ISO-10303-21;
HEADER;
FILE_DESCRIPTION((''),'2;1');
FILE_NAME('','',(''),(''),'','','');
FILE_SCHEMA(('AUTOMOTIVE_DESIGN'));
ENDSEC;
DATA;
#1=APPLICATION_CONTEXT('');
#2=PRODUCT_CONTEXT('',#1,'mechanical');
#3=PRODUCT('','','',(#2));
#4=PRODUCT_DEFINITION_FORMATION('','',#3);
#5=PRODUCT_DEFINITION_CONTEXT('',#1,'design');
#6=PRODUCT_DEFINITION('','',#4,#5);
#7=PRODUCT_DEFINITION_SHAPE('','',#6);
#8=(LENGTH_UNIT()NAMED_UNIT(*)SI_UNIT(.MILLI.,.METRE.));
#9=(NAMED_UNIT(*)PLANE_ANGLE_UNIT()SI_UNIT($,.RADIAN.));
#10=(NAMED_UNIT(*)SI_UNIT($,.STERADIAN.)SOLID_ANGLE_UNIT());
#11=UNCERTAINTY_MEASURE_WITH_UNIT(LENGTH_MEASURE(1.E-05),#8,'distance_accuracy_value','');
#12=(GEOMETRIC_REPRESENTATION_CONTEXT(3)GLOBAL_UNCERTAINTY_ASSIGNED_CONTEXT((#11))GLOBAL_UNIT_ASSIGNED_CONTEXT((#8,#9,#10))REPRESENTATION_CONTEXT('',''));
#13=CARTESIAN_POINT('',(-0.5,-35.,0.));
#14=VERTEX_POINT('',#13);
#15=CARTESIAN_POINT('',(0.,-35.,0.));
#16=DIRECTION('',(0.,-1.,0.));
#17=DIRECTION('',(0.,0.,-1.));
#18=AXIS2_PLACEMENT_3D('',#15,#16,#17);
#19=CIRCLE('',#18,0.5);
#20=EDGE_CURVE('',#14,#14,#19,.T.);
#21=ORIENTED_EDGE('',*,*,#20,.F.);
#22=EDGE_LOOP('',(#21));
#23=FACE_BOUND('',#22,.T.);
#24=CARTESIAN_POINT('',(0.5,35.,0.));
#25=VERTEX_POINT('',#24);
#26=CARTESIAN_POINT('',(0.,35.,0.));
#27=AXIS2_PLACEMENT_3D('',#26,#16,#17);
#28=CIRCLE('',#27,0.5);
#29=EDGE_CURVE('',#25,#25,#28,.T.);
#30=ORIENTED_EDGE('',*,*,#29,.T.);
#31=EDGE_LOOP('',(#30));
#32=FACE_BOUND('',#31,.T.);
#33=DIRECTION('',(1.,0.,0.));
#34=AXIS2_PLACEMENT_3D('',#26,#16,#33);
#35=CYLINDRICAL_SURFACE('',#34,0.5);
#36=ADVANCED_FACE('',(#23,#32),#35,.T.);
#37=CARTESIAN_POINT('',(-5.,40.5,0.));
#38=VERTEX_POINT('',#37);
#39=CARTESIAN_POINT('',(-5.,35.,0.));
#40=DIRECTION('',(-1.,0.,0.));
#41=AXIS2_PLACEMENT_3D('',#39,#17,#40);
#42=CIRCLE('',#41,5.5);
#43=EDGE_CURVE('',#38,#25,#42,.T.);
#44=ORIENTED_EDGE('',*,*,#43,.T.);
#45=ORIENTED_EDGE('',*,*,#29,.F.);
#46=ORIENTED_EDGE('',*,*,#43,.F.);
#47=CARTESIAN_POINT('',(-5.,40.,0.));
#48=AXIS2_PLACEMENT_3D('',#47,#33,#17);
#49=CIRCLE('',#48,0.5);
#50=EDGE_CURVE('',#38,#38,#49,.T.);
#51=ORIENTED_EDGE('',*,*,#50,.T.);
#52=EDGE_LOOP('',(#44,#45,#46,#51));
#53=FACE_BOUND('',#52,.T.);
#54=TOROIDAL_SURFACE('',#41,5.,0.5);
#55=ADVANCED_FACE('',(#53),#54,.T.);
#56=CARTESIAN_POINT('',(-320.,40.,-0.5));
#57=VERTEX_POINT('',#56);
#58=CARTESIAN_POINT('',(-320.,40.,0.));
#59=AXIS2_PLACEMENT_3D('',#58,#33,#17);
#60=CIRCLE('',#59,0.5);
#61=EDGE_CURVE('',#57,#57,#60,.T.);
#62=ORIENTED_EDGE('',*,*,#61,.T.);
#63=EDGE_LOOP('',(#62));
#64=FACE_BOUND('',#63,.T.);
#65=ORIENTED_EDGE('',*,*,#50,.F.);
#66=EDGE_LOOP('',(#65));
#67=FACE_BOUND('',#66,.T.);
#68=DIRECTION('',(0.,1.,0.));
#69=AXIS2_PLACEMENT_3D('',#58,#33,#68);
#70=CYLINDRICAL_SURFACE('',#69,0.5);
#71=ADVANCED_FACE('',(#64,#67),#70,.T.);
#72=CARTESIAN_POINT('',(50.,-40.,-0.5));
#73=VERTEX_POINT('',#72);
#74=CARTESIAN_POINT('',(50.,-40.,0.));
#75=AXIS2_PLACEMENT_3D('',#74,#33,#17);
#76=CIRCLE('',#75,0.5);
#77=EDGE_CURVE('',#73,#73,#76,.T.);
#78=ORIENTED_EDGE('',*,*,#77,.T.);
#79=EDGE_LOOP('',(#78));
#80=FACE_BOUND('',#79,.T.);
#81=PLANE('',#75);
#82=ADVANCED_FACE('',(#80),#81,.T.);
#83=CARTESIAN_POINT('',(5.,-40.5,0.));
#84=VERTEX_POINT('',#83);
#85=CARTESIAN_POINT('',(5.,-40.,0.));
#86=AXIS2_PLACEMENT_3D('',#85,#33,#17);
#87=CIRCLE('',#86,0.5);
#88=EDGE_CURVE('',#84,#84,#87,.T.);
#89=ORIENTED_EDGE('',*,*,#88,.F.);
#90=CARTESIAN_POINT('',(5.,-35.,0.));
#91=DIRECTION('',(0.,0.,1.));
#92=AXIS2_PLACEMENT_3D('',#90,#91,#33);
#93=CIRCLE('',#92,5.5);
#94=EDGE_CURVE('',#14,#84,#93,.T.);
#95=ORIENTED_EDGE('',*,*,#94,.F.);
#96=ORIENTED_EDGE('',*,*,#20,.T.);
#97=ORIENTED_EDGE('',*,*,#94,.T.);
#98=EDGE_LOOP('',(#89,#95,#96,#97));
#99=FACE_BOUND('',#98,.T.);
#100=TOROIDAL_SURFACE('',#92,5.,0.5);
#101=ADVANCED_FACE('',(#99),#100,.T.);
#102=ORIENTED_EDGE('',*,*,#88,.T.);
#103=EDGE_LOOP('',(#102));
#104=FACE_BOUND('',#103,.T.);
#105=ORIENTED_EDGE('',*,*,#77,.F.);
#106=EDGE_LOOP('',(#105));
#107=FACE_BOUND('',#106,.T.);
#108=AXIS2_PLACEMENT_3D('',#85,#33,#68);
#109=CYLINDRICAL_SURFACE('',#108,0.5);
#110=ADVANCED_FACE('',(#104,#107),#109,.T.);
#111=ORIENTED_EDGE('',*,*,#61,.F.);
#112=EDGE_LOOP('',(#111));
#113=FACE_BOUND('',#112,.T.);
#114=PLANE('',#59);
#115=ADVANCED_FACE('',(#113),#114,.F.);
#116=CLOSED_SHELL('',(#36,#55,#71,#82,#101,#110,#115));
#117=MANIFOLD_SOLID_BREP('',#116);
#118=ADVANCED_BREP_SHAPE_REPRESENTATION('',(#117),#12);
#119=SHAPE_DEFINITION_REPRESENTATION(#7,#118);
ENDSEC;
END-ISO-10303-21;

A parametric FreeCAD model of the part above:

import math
import FreeCAD as App
import Part
import Sketcher
Q = App.Units.Quantity

doc = App.newDocument("Part")
body = doc.addObject("PartDesign::Body", "Body")

sketch1 = body.newObject("Sketcher::SketchObject", "Sketch")
sketch1.AttachmentSupport = (doc.getObject("YZ_Plane"), [""])
sketch1.MapMode = "FlatFace"
sketch1.AttachmentOffset = App.Placement(App.Vector(0, 0, 50), App.Rotation())
sketch1.addGeometry(Part.Circle(App.Vector(-40, 0, 0), App.Vector(0, 0, 1), 0.5), False)
sketch1.addConstraint([
    Sketcher.Constraint("PointOnObject", 0, 3, -1),
    Sketcher.Constraint("Diameter", 0, Q("1 mm")),
    Sketcher.Constraint("DistanceX", 0, 3, -1, 1, Q("40 mm")),
])

sketch2 = body.newObject("Sketcher::SketchObject", "Sketch001")
sketch2.AttachmentSupport = (doc.getObject("XY_Plane"), [""])
sketch2.MapMode = "FlatFace"
sketch2.addGeometry([
    Part.LineSegment(App.Vector(-320, 40, 0), App.Vector(-5, 40, 0)),
    Part.ArcOfCircle(Part.Circle(App.Vector(-5, 35, 0), App.Vector(0, 0, 1), 5), math.radians(0), math.radians(90)),
    Part.LineSegment(App.Vector(0, 35, 0), App.Vector(0, -35, 0)),
    Part.ArcOfCircle(Part.Circle(App.Vector(5, -35, 0), App.Vector(0, 0, 1), 5), math.radians(180), math.radians(270)),
    Part.LineSegment(App.Vector(5, -40, 0), App.Vector(50, -40, 0)),
], False)
sketch2.addConstraint([
    Sketcher.Constraint("Tangent", 0, 2, 1, 2),
    Sketcher.Constraint("Tangent", 1, 1, 2, 1),
    Sketcher.Constraint("Tangent", 2, 2, 3, 1),
    Sketcher.Constraint("Tangent", 3, 2, 4, 1),
    Sketcher.Constraint("Horizontal", 0),
    Sketcher.Constraint("Vertical", 2),
    Sketcher.Constraint("Horizontal", 4),
    Sketcher.Constraint("Equal", 1, 3),
    Sketcher.Constraint("Symmetric", 1, 3, 3, 3, -1, 1),
    Sketcher.Constraint("Radius", 1, Q("5 mm")),
    Sketcher.Constraint("DistanceX", 0, 1, 0, 2, Q("315 mm")),
    Sketcher.Constraint("DistanceX", 4, 1, 4, 2, Q("45 mm")),
    Sketcher.Constraint("DistanceY", 2, 2, 2, 1, Q("70 mm")),
])
doc.recompute()

additivepipe = body.newObject("PartDesign::AdditivePipe", "AdditivePipe")
additivepipe.Profile = sketch1
additivepipe.Spine = (sketch2, ["Edge1", "Edge2", "Edge3", "Edge4", "Edge5"])

doc.recompute()
